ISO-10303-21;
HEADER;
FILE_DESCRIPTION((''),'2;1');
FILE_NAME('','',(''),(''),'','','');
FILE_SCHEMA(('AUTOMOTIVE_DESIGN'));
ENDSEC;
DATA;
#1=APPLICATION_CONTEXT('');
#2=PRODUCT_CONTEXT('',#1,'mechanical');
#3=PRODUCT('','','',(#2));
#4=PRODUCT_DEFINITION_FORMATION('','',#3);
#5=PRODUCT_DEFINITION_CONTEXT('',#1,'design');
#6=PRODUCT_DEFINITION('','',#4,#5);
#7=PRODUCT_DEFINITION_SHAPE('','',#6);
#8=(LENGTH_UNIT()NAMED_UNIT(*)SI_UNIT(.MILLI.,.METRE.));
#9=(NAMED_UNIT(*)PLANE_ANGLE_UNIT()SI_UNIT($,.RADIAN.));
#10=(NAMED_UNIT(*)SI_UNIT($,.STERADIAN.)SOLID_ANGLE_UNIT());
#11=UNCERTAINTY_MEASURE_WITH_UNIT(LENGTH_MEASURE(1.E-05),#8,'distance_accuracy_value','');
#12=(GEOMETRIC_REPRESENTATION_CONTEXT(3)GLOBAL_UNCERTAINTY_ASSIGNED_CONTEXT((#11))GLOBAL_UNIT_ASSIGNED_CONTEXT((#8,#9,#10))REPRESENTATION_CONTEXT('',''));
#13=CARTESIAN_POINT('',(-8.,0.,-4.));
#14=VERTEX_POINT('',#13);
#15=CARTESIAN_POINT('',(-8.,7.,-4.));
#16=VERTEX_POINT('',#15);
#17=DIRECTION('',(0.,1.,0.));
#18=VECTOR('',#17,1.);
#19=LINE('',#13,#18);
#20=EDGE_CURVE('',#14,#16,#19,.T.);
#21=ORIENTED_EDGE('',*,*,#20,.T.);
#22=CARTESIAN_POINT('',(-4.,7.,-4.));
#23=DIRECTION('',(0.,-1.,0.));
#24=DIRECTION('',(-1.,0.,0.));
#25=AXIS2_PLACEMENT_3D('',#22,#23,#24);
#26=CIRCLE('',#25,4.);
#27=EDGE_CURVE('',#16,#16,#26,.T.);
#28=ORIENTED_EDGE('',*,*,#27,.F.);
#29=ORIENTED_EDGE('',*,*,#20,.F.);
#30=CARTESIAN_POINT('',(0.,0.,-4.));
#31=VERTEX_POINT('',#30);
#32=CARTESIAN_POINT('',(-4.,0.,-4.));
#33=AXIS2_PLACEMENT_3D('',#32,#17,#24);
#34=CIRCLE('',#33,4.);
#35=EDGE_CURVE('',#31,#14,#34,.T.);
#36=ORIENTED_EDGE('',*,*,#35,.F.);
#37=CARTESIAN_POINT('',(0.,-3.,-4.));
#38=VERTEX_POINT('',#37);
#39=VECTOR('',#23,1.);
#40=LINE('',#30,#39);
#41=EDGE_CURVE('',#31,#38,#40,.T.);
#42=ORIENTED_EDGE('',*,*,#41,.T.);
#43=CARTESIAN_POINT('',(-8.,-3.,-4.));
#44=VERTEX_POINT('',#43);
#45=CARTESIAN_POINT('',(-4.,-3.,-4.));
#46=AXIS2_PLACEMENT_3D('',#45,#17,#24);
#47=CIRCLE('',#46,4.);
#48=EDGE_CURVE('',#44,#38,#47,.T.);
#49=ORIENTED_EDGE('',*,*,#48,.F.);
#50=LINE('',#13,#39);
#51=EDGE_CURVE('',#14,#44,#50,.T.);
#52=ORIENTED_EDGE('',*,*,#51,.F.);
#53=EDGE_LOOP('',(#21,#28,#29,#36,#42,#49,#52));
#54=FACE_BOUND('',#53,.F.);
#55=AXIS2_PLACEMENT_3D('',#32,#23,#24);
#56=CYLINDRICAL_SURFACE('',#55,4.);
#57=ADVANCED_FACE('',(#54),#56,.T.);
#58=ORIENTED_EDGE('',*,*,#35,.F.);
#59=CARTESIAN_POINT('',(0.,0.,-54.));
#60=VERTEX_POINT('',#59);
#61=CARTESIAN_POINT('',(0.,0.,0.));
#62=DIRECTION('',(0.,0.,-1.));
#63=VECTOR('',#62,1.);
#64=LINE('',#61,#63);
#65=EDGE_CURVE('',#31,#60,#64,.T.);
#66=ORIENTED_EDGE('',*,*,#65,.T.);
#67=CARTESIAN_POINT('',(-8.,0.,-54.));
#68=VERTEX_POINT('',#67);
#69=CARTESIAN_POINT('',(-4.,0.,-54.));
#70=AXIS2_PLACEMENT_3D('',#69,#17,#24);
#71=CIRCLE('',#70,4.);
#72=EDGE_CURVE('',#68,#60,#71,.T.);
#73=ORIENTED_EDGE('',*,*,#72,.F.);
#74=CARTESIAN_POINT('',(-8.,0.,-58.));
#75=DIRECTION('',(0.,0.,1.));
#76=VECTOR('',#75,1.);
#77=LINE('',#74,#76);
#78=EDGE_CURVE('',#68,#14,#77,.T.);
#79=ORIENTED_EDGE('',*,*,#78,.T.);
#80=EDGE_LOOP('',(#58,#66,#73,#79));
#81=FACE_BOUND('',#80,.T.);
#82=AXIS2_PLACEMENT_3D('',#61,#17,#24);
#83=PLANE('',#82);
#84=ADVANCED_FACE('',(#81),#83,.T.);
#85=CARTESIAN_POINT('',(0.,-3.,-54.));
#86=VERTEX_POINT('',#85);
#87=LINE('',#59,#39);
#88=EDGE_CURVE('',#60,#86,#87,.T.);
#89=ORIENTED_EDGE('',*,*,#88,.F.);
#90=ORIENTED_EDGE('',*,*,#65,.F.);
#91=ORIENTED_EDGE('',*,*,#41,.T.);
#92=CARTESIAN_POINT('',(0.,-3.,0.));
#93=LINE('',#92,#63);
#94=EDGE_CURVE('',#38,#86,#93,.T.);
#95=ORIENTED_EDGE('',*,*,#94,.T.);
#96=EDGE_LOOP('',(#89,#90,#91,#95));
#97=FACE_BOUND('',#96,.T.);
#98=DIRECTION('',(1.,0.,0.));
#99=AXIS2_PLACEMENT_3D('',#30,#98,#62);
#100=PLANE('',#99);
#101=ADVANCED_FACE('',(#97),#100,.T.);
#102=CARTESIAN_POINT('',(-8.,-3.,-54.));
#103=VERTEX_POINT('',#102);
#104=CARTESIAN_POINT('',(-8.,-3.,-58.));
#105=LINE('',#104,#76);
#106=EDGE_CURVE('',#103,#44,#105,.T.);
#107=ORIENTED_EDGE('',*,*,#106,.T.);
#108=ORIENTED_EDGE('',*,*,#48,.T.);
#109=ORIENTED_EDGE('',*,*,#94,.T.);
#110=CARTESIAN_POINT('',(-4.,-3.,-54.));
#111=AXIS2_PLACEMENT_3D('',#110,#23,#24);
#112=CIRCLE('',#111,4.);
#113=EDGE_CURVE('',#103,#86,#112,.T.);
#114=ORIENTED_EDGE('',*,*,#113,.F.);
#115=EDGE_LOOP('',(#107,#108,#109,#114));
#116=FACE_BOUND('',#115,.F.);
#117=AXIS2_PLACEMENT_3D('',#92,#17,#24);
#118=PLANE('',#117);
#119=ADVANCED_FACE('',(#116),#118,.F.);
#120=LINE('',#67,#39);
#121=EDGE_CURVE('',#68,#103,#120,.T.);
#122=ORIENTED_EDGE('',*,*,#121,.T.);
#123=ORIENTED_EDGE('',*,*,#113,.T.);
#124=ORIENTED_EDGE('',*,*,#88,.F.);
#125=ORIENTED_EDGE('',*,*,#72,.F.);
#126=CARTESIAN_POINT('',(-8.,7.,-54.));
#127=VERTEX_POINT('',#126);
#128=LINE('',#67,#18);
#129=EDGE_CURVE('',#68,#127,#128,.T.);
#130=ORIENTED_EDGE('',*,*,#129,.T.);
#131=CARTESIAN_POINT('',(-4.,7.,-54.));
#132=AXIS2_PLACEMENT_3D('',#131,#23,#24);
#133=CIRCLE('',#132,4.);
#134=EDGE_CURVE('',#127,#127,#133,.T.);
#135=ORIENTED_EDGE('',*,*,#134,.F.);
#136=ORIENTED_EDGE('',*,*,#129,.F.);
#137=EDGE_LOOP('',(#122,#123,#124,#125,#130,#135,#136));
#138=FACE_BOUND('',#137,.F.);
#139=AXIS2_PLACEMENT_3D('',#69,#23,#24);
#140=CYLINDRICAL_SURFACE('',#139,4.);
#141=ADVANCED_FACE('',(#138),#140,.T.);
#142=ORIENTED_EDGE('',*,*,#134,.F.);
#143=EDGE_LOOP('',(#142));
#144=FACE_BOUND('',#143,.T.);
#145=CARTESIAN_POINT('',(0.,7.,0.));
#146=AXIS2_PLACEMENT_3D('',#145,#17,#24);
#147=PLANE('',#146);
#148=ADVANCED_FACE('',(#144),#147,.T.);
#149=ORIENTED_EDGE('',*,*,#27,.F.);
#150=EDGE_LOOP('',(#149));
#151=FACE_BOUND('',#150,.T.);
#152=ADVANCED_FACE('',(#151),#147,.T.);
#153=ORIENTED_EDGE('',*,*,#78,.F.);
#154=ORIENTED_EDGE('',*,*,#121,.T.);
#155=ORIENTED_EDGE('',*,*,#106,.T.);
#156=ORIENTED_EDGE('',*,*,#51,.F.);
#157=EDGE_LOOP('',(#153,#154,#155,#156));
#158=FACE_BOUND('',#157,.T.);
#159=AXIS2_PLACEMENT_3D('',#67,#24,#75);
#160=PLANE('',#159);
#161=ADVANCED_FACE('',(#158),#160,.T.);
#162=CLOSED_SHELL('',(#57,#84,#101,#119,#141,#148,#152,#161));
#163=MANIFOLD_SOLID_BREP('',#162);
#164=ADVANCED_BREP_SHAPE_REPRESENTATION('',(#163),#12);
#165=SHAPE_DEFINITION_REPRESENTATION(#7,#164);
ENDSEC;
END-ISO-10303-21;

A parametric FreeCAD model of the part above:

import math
import FreeCAD as App
import Part
import Sketcher
Q = App.Units.Quantity

doc = App.newDocument("Part")
body = doc.addObject("PartDesign::Body", "Body")
body.AllowCompound = True

# Sketch on XZ plane
sketch1 = body.newObject("Sketcher::SketchObject", "Sketch")
sketch1.AttachmentSupport = (doc.getObject("XZ_Plane"), [""])
sketch1.MapMode = "FlatFace"
sketch1.addGeometry(Part.Circle(App.Vector(-4, -4, 0), App.Vector(0, 0, 1), 4), False)
sketch1.addGeometry(Part.Circle(App.Vector(-4, -54, 0), App.Vector(0, 0, 1), 4), False)
sketch1.addConstraint(Sketcher.Constraint("Equal", 0, 1))
sketch1.addConstraint(Sketcher.Constraint("Vertical", 0, 3, 1, 3))
sketch1.addConstraint(Sketcher.Constraint("Diameter", 0, Q("8 mm")))
sketch1.addConstraint(Sketcher.Constraint("DistanceY", 1, 3, 0, 3, Q("50 mm")))
sketch1.addConstraint(Sketcher.Constraint("DistanceX", 0, 3, -1, 1, Q("4 mm")))
sketch1.addConstraint(Sketcher.Constraint("DistanceY", 0, 3, -1, 1, Q("4 mm")))
pad1 = body.newObject("PartDesign::Pad", "Pad")
pad1.Profile = sketch1
pad1.Length = 7
pad1.Reversed = True

# Sketch on XZ plane
sketch2 = body.newObject("Sketcher::SketchObject", "Sketch001")
sketch2.AttachmentSupport = (doc.getObject("XZ_Plane"), [""])
sketch2.MapMode = "FlatFace"
sketch2.addGeometry(Part.LineSegment(App.Vector(0, -4, 0), App.Vector(0, -54, 0)), False)
sketch2.addGeometry(Part.ArcOfCircle(Part.Circle(App.Vector(-4, -54, 0), App.Vector(0, 0, 1), 4), math.radians(180), math.radians(360)), False)
sketch2.addGeometry(Part.LineSegment(App.Vector(-8, -54, 0), App.Vector(-8, -4, 0)), False)
sketch2.addGeometry(Part.ArcOfCircle(Part.Circle(App.Vector(-4, -4, 0), App.Vector(0, 0, 1), 4), math.radians(0), math.radians(180)), False)
sketch2.addConstraint(Sketcher.Constraint("Tangent", 0, 2, 1, 2))
sketch2.addConstraint(Sketcher.Constraint("Tangent", 1, 1, 2, 1))
sketch2.addConstraint(Sketcher.Constraint("Tangent", 2, 2, 3, 2))
sketch2.addConstraint(Sketcher.Constraint("Tangent", 3, 1, 0, 1))
sketch2.addConstraint(Sketcher.Constraint("Vertical", 0))
sketch2.addConstraint(Sketcher.Constraint("Vertical", 2))
sketch2.addConstraint(Sketcher.Constraint("PointOnObject", 0, 2, -2))
sketch2.addConstraint(Sketcher.Constraint("Radius", 1, Q("4 mm")))
sketch2.addConstraint(Sketcher.Constraint("DistanceY", 0, 2, 0, 1, Q("50 mm")))
sketch2.addConstraint(Sketcher.Constraint("DistanceY", 1, 3, -1, 1, Q("54 mm")))
pad2 = body.newObject("PartDesign::Pad", "Pad001")
pad2.Profile = sketch2
pad2.Length = 3

doc.recompute()
